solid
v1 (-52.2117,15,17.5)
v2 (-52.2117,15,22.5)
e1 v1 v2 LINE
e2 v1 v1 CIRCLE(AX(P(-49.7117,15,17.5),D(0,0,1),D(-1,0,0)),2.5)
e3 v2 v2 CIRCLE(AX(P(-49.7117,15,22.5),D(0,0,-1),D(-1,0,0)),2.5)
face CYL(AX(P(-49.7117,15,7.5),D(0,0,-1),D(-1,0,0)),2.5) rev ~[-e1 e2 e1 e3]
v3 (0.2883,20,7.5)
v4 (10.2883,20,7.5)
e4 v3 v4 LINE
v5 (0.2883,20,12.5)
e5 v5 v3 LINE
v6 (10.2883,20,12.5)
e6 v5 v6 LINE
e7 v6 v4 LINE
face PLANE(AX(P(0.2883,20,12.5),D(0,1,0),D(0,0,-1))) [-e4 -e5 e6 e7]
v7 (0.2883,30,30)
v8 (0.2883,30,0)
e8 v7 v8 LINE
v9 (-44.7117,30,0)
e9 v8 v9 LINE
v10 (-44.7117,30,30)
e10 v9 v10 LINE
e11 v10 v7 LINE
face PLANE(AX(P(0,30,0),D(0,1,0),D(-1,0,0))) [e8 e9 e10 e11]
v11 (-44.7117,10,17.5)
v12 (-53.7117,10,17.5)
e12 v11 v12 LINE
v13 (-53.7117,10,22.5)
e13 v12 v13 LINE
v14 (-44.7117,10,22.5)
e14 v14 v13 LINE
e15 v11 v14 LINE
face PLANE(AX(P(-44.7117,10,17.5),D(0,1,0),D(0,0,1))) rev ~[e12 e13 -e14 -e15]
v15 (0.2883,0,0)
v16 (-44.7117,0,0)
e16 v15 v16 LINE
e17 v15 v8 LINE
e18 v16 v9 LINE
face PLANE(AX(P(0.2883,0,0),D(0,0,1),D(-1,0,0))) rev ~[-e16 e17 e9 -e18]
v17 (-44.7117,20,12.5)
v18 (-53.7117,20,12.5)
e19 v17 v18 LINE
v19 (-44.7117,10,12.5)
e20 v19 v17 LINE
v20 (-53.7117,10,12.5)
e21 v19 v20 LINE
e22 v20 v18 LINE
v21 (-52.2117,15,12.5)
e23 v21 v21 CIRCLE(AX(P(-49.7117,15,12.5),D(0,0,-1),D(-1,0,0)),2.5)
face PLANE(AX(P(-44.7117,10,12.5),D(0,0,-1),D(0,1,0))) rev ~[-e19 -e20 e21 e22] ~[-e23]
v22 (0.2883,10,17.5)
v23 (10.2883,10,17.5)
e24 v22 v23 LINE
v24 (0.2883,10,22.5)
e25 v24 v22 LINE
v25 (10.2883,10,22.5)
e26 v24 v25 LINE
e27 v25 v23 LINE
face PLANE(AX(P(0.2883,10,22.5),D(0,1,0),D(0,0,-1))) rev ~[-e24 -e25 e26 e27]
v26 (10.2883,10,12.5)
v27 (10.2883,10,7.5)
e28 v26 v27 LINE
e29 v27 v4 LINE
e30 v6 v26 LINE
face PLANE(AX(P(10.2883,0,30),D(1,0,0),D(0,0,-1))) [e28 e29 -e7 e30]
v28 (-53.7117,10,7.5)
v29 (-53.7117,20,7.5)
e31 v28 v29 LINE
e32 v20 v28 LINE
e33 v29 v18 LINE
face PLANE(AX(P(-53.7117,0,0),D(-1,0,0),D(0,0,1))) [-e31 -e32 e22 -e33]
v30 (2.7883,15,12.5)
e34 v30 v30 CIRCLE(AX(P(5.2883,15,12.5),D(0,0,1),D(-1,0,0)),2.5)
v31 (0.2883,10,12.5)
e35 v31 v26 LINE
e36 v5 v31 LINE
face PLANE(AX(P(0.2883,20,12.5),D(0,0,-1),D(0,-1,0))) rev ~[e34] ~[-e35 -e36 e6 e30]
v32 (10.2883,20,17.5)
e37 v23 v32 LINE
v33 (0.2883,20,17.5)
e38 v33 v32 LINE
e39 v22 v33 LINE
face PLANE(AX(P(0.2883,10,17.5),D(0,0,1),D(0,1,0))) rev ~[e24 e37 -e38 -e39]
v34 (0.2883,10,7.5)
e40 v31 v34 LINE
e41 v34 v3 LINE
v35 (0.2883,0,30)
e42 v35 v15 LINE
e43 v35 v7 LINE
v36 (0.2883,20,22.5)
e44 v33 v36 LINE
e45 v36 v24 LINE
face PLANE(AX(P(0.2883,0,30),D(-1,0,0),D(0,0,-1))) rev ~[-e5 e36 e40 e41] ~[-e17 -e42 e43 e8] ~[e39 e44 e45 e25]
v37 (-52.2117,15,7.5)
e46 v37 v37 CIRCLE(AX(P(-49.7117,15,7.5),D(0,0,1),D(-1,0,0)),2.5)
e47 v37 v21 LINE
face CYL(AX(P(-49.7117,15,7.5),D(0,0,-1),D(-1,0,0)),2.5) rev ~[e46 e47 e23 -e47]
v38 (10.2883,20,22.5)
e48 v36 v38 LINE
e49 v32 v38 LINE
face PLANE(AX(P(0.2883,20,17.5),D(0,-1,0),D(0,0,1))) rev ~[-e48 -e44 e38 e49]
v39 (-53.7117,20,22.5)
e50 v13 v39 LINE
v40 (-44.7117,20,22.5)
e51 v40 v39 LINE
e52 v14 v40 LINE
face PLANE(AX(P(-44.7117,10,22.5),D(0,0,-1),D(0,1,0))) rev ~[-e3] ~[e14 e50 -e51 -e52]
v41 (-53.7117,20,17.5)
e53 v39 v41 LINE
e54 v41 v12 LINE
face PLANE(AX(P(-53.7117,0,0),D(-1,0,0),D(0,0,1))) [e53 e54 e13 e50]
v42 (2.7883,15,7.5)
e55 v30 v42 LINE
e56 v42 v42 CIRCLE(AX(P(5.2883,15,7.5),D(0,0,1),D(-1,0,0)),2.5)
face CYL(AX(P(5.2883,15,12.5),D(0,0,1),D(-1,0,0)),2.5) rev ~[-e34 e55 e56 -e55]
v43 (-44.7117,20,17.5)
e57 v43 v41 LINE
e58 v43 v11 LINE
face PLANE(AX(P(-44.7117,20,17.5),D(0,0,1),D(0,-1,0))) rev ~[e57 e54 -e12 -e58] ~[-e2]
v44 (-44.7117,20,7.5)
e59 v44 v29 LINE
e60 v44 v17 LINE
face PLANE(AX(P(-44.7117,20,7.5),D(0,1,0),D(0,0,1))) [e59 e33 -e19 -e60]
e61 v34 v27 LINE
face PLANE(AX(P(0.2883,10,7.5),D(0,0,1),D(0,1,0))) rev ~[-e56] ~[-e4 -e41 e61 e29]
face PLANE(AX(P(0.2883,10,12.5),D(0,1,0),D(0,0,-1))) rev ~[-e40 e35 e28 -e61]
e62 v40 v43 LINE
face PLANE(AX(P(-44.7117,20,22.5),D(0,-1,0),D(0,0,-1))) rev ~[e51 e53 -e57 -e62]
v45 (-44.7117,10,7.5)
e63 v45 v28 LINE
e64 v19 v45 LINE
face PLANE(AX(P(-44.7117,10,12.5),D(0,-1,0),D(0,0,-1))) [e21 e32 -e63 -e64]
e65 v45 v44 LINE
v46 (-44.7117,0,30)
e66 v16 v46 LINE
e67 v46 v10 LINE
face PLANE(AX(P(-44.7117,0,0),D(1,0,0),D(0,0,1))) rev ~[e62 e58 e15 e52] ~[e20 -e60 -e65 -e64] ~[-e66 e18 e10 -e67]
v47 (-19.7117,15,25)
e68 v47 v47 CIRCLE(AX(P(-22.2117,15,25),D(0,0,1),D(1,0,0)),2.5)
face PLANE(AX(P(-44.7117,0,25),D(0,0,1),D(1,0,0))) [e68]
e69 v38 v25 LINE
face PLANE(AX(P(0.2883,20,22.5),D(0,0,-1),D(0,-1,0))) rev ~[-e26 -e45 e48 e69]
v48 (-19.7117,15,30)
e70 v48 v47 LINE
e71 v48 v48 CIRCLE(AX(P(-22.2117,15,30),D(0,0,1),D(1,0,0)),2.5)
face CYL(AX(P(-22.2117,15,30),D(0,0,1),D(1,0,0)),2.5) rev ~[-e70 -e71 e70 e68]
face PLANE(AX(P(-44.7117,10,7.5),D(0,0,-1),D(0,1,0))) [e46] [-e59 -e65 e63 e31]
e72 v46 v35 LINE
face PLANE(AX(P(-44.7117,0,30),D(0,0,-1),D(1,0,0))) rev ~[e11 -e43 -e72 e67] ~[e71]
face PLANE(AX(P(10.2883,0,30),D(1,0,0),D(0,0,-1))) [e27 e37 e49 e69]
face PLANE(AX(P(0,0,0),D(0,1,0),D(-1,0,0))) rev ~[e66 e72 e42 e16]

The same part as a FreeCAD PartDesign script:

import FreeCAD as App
import Part
import Sketcher

V = App.Vector

doc = App.newDocument("Part")
body = doc.addObject("PartDesign::Body", "Body")

sketch1 = doc.addObject("Sketcher::SketchObject", "Sketch")
body.addObject(sketch1)
sketch1.AttachmentSupport = (doc.XZ_Plane, [""])
sketch1.MapMode = "FlatFace"
sketch1.addGeometry([
    Part.LineSegment(V(0.2883, 30, 0), V(0.2883, 0, 0)),
    Part.LineSegment(V(0.2883, 0, 0), V(-44.7117, 0, 0)),
    Part.LineSegment(V(-44.7117, 0, 0), V(-44.7117, 30, 0)),
    Part.LineSegment(V(-44.7117, 30, 0), V(0.2883, 30, 0)),
], False)
sketch1.addConstraint([
    Sketcher.Constraint("Coincident", 0, 2, 1, 1),
    Sketcher.Constraint("Coincident", 1, 2, 2, 1),
    Sketcher.Constraint("Coincident", 2, 2, 3, 1),
    Sketcher.Constraint("Coincident", 3, 2, 0, 1),
    Sketcher.Constraint("Vertical", 0),
    Sketcher.Constraint("Horizontal", 1),
    Sketcher.Constraint("Vertical", 2),
    Sketcher.Constraint("Horizontal", 3),
    Sketcher.Constraint("PointOnObject", 0, 2, -1),
    Sketcher.Constraint("DistanceX", 1, 2, 1, 1, 45.0),
    Sketcher.Constraint("DistanceY", 0, 2, 0, 1, 30.0),
    Sketcher.Constraint("DistanceX", -1, 1, 0, 2, 0.2883),
])
pad1 = doc.addObject("PartDesign::Pad", "Pad")
body.addObject(pad1)
pad1.Profile = sketch1
pad1.Length = 30
pad1.Reversed = True

sketch2 = doc.addObject("Sketcher::SketchObject", "Sketch001")
body.addObject(sketch2)
sketch2.AttachmentSupport = (doc.YZ_Plane, [""])
sketch2.MapMode = "FlatFace"
sketch2.AttachmentOffset = App.Placement(V(0, 0, -44.7117), App.Rotation())
sketch2.addGeometry([
    Part.LineSegment(V(20, 17.5, 0), V(10, 17.5, 0)),
    Part.LineSegment(V(10, 17.5, 0), V(10, 22.5, 0)),
    Part.LineSegment(V(10, 22.5, 0), V(20, 22.5, 0)),
    Part.LineSegment(V(20, 22.5, 0), V(20, 17.5, 0)),
    Part.LineSegment(V(10, 7.5, 0), V(10, 12.5, 0)),
    Part.LineSegment(V(10, 12.5, 0), V(20, 12.5, 0)),
    Part.LineSegment(V(20, 12.5, 0), V(20, 7.5, 0)),
    Part.LineSegment(V(20, 7.5, 0), V(10, 7.5, 0)),
], False)
sketch2.addConstraint([
    Sketcher.Constraint("Coincident", 0, 2, 1, 1),
    Sketcher.Constraint("Coincident", 1, 2, 2, 1),
    Sketcher.Constraint("Coincident", 2, 2, 3, 1),
    Sketcher.Constraint("Coincident", 3, 2, 0, 1),
    Sketcher.Constraint("Coincident", 4, 2, 5, 1),
    Sketcher.Constraint("Coincident", 5, 2, 6, 1),
    Sketcher.Constraint("Coincident", 6, 2, 7, 1),
    Sketcher.Constraint("Coincident", 7, 2, 4, 1),
    Sketcher.Constraint("Horizontal", 0),
    Sketcher.Constraint("Vertical", 1),
    Sketcher.Constraint("Horizontal", 2),
    Sketcher.Constraint("Vertical", 3),
    Sketcher.Constraint("Vertical", 4),
    Sketcher.Constraint("Horizontal", 5),
    Sketcher.Constraint("Vertical", 6),
    Sketcher.Constraint("Horizontal", 7),
    Sketcher.Constraint("Vertical", 1, 2, 4, 2),
    Sketcher.Constraint("Vertical", 3, 2, 5, 2),
    Sketcher.Constraint("Equal", 3, 4),
    Sketcher.Constraint("DistanceX", 0, 2, 0, 1, 10.0),
    Sketcher.Constraint("DistanceY", 1, 1, 1, 2, 5.0),
    Sketcher.Constraint("DistanceX", -1, 1, 0, 2, 10.0),
    Sketcher.Constraint("DistanceY", 4, 2, 0, 2, 5.0),
    Sketcher.Constraint("DistanceY", -1, 1, 0, 2, 17.5),
])
pad2 = doc.addObject("PartDesign::Pad", "Pad001")
body.addObject(pad2)
pad2.Profile = sketch2
pad2.Length = 9
pad2.Reversed = True

sketch3 = doc.addObject("Sketcher::SketchObject", "Sketch002")
body.addObject(sketch3)
sketch3.AttachmentSupport = (doc.XY_Plane, [""])
sketch3.MapMode = "FlatFace"
sketch3.AttachmentOffset = App.Placement(V(0, 0, 7.5), App.Rotation())
sketch3.addGeometry(Part.Circle(V(-49.7117, 15, 0), V(0, 0, 1), 2.5), False)
sketch3.addConstraint([
    Sketcher.Constraint("Diameter", 0, 5.0),
    Sketcher.Constraint("DistanceY", -1, 1, 0, 3, 15.0),
    Sketcher.Constraint("DistanceX", 0, 3, -1, 1, 49.7117),
])
pocket1 = doc.addObject("PartDesign::Pocket", "Pocket")
body.addObject(pocket1)
pocket1.Profile = sketch3
pocket1.Type = "ThroughAll"
pocket1.Reversed = True

sketch4 = doc.addObject("Sketcher::SketchObject", "Sketch003")
body.addObject(sketch4)
sketch4.AttachmentSupport = (doc.YZ_Plane, [""])
sketch4.MapMode = "FlatFace"
sketch4.AttachmentOffset = App.Placement(V(0, 0, 0.2883), App.Rotation())
sketch4.addGeometry([
    Part.LineSegment(V(10, 22.5, 0), V(10, 17.5, 0)),
    Part.LineSegment(V(10, 17.5, 0), V(20, 17.5, 0)),
    Part.LineSegment(V(20, 17.5, 0), V(20, 22.5, 0)),
    Part.LineSegment(V(20, 22.5, 0), V(10, 22.5, 0)),
    Part.LineSegment(V(20, 12.5, 0), V(10, 12.5, 0)),
    Part.LineSegment(V(10, 12.5, 0), V(10, 7.5, 0)),
    Part.LineSegment(V(10, 7.5, 0), V(20, 7.5, 0)),
    Part.LineSegment(V(20, 7.5, 0), V(20, 12.5, 0)),
], False)
sketch4.addConstraint([
    Sketcher.Constraint("Coincident", 0, 2, 1, 1),
    Sketcher.Constraint("Coincident", 1, 2, 2, 1),
    Sketcher.Constraint("Coincident", 2, 2, 3, 1),
    Sketcher.Constraint("Coincident", 3, 2, 0, 1),
    Sketcher.Constraint("Coincident", 4, 2, 5, 1),
    Sketcher.Constraint("Coincident", 5, 2, 6, 1),
    Sketcher.Constraint("Coincident", 6, 2, 7, 1),
    Sketcher.Constraint("Coincident", 7, 2, 4, 1),
    Sketcher.Constraint("Vertical", 0),
    Sketcher.Constraint("Horizontal", 1),
    Sketcher.Constraint("Vertical", 2),
    Sketcher.Constraint("Horizontal", 3),
    Sketcher.Constraint("Horizontal", 4),
    Sketcher.Constraint("Vertical", 5),
    Sketcher.Constraint("Horizontal", 6),
    Sketcher.Constraint("Vertical", 7),
    Sketcher.Constraint("Vertical", 3, 2, 4, 2),
    Sketcher.Constraint("Vertical", 2, 2, 6, 2),
    Sketcher.Constraint("Equal", 2, 5),
    Sketcher.Constraint("DistanceX", 1, 1, 1, 2, 10.0),
    Sketcher.Constraint("DistanceY", 0, 2, 0, 1, 5.0),
    Sketcher.Constraint("DistanceX", -1, 1, 0, 2, 10.0),
    Sketcher.Constraint("DistanceY", 4, 2, 0, 2, 5.0),
    Sketcher.Constraint("DistanceY", -1, 1, 0, 2, 17.5),
])
pad3 = doc.addObject("PartDesign::Pad", "Pad002")
body.addObject(pad3)
pad3.Profile = sketch4
pad3.Length = 10

sketch5 = doc.addObject("Sketcher::SketchObject", "Sketch004")
body.addObject(sketch5)
sketch5.AttachmentSupport = (doc.XY_Plane, [""])
sketch5.MapMode = "FlatFace"
sketch5.AttachmentOffset = App.Placement(V(0, 0, 12.5), App.Rotation())
sketch5.addGeometry(Part.Circle(V(5.2883, 15, 0), V(0, 0, 1), 2.5), False)
sketch5.addConstraint([
    Sketcher.Constraint("Diameter", 0, 5.0),
    Sketcher.Constraint("DistanceY", -1, 1, 0, 3, 15.0),
    Sketcher.Constraint("DistanceX", -1, 1, 0, 3, 5.2883),
])
pocket2 = doc.addObject("PartDesign::Pocket", "Pocket001")
body.addObject(pocket2)
pocket2.Profile = sketch5
pocket2.Type = "ThroughAll"

sketch6 = doc.addObject("Sketcher::SketchObject", "Sketch005")
body.addObject(sketch6)
sketch6.AttachmentSupport = (doc.XY_Plane, [""])
sketch6.MapMode = "FlatFace"
sketch6.AttachmentOffset = App.Placement(V(0, 0, 30), App.Rotation())
sketch6.addGeometry(Part.Circle(V(-22.2117, 15, 0), V(0, 0, 1), 2.5), False)
sketch6.addConstraint([
    Sketcher.Constraint("Diameter", 0, 5.0),
    Sketcher.Constraint("DistanceY", -1, 1, 0, 3, 15.0),
    Sketcher.Constraint("DistanceX", 0, 3, -1, 1, 22.2117),
])
pocket3 = doc.addObject("PartDesign::Pocket", "Pocket002")
body.addObject(pocket3)
pocket3.Profile = sketch6
pocket3.Length = 5

doc.recompute()
